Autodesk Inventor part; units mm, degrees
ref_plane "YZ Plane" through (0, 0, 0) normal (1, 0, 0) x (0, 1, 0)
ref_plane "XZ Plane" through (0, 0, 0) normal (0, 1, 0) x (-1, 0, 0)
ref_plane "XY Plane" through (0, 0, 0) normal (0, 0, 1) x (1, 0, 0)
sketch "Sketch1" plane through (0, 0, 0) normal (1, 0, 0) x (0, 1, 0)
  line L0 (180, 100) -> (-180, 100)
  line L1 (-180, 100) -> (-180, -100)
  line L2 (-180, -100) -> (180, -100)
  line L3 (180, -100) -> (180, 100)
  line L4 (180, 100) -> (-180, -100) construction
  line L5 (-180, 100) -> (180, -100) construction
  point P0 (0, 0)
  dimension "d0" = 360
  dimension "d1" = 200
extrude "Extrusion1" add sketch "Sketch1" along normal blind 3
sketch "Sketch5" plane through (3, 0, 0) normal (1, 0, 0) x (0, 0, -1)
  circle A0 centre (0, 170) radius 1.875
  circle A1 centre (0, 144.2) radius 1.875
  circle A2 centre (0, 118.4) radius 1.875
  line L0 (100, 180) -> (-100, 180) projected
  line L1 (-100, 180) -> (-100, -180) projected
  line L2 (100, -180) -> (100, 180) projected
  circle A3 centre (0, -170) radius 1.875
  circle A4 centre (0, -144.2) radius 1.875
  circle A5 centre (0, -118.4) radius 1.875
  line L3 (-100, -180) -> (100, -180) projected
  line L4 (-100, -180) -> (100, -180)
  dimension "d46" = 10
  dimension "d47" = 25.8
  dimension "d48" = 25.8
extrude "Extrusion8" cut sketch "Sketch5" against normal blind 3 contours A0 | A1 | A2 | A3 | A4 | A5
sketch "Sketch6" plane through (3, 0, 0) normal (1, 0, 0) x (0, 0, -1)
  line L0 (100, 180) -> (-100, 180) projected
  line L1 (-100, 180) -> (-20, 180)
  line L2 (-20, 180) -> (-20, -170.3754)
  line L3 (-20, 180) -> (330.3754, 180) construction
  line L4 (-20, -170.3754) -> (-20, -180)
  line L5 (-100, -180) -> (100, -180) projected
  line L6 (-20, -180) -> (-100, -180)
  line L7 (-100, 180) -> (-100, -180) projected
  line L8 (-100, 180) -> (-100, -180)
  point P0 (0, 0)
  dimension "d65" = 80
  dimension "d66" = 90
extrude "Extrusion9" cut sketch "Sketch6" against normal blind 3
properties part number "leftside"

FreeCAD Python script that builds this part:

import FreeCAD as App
import Part
import Sketcher
Q = App.Units.Quantity

doc = App.newDocument("Part")
params = doc.addObject("Spreadsheet::Sheet", "Params")
for row, (alias, value) in enumerate([
    ("sketch1_width", "360 mm"),
    ("sketch1_height", "200 mm"),
    ("pad1_length", "3 mm"),
    ("sketch2_diameter", "3.75 mm"),
    ("pocket1_length", "3 mm"),
    ("sketch3_height", "80 mm"),
    ("sketch3_width", "360 mm"),
    ("pocket2_length", "3 mm"),
], start=1):
    params.set(f"A{row}", alias)
    params.set(f"B{row}", "=" + value)
    params.setAlias(f"B{row}", alias)

body = doc.addObject("PartDesign::Body", "Body")

sketch1 = body.newObject("Sketcher::SketchObject", "Sketch")
sketch1.AttachmentSupport = (doc.getObject("YZ_Plane"), [""])
sketch1.MapMode = "FlatFace"
sketch1.addGeometry([
    Part.LineSegment(App.Vector(180, -100, 0), App.Vector(180, 100, 0)),
    Part.LineSegment(App.Vector(180, 100, 0), App.Vector(-180, 100, 0)),
    Part.LineSegment(App.Vector(-180, 100, 0), App.Vector(-180, -100, 0)),
    Part.LineSegment(App.Vector(-180, -100, 0), App.Vector(180, -100, 0)),
], False)
sketch1.addConstraint([
    Sketcher.Constraint("Coincident", 0, 2, 1, 1),
    Sketcher.Constraint("Coincident", 1, 2, 2, 1),
    Sketcher.Constraint("Coincident", 2, 2, 3, 1),
    Sketcher.Constraint("Coincident", 3, 2, 0, 1),
    Sketcher.Constraint("Vertical", 0),
    Sketcher.Constraint("Horizontal", 1),
    Sketcher.Constraint("Vertical", 2),
    Sketcher.Constraint("Horizontal", 3),
    Sketcher.Constraint("Symmetric", 0, 2, 2, 2, -1, 1),
    Sketcher.Constraint("DistanceX", 1, 2, 1, 1, Q("360 mm")),
    Sketcher.Constraint("DistanceY", 0, 1, 0, 2, Q("200 mm")),
])
sketch1.setExpression("Constraints[9]", "Params.sketch1_width")
sketch1.setExpression("Constraints[10]", "Params.sketch1_height")
pad1 = body.newObject("PartDesign::Pad", "Pad")
pad1.Profile = sketch1
pad1.setExpression("Length", "Params.pad1_length")

sketch2 = body.newObject("Sketcher::SketchObject", "Sketch001")
sketch2.AttachmentSupport = (doc.getObject("YZ_Plane"), [""])
sketch2.MapMode = "FlatFace"
sketch2.AttachmentOffset = App.Placement(App.Vector(0, 0, 3), App.Rotation())
sketch2.addGeometry([
    Part.Circle(App.Vector(170, 0, 0), App.Vector(0, 0, 1), 1.9),
    Part.Circle(App.Vector(144.2, 0, 0), App.Vector(0, 0, 1), 1.9),
    Part.Circle(App.Vector(118.4, 0, 0), App.Vector(0, 0, 1), 1.9),
    Part.Circle(App.Vector(-170, 0, 0), App.Vector(0, 0, 1), 1.9),
    Part.Circle(App.Vector(-144.2, 0, 0), App.Vector(0, 0, 1), 1.9),
    Part.Circle(App.Vector(-118.4, 0, 0), App.Vector(0, 0, 1), 1.9),
], False)
sketch2.addConstraint([
    Sketcher.Constraint("Equal", 0, 1),
    Sketcher.Constraint("Equal", 1, 2),
    Sketcher.Constraint("Equal", 2, 3),
    Sketcher.Constraint("Equal", 3, 4),
    Sketcher.Constraint("Equal", 4, 5),
    Sketcher.Constraint("Symmetric", 0, 3, 3, 3, -1, 1),
    Sketcher.Constraint("Symmetric", 1, 3, 4, 3, -1, 1),
    Sketcher.Constraint("Symmetric", 2, 3, 5, 3, -1, 1),
    Sketcher.Constraint("PointOnObject", 0, 3, -1),
    Sketcher.Constraint("PointOnObject", 1, 3, -1),
    Sketcher.Constraint("PointOnObject", 2, 3, -1),
    Sketcher.Constraint("DistanceX", 1, 3, 0, 3, Q("25.8 mm")),
    Sketcher.Constraint("DistanceX", 2, 3, 1, 3, Q("25.8 mm")),
    Sketcher.Constraint("Diameter", 0, Q("3.75 mm")),
    Sketcher.Constraint("DistanceX", -1, 1, 0, 3, Q("170 mm")),
])
sketch2.setExpression("Constraints[13]", "Params.sketch2_diameter")
pocket1 = body.newObject("PartDesign::Pocket", "Pocket")
pocket1.Profile = sketch2
pocket1.setExpression("Length", "Params.pocket1_length")

sketch3 = body.newObject("Sketcher::SketchObject", "Sketch002")
sketch3.AttachmentSupport = (doc.getObject("YZ_Plane"), [""])
sketch3.MapMode = "FlatFace"
sketch3.AttachmentOffset = App.Placement(App.Vector(0, 0, 3), App.Rotation())
sketch3.addGeometry([
    Part.LineSegment(App.Vector(-180, 20, 0), App.Vector(180, 20, 0)),
    Part.LineSegment(App.Vector(180, 20, 0), App.Vector(180, 100, 0)),
    Part.LineSegment(App.Vector(180, 100, 0), App.Vector(-180, 100, 0)),
    Part.LineSegment(App.Vector(-180, 100, 0), App.Vector(-180, 20, 0)),
], False)
sketch3.addConstraint([
    Sketcher.Constraint("Coincident", 0, 2, 1, 1),
    Sketcher.Constraint("Coincident", 1, 2, 2, 1),
    Sketcher.Constraint("Coincident", 2, 2, 3, 1),
    Sketcher.Constraint("Coincident", 3, 2, 0, 1),
    Sketcher.Constraint("Horizontal", 0),
    Sketcher.Constraint("Vertical", 1),
    Sketcher.Constraint("Horizontal", 2),
    Sketcher.Constraint("Vertical", 3),
    Sketcher.Constraint("DistanceY", 1, 1, 1, 2, Q("80 mm")),
    Sketcher.Constraint("DistanceX", 0, 1, 0, 2, Q("360 mm")),
    Sketcher.Constraint("DistanceX", -1, 1, 0, 2, Q("180 mm")),
    Sketcher.Constraint("DistanceY", -1, 1, 0, 2, Q("20 mm")),
])
sketch3.setExpression("Constraints[8]", "Params.sketch3_height")
sketch3.setExpression("Constraints[9]", "Params.sketch3_width")
pocket2 = body.newObject("PartDesign::Pocket", "Pocket001")
pocket2.Profile = sketch3
pocket2.setExpression("Length", "Params.pocket2_length")

doc.recompute()
